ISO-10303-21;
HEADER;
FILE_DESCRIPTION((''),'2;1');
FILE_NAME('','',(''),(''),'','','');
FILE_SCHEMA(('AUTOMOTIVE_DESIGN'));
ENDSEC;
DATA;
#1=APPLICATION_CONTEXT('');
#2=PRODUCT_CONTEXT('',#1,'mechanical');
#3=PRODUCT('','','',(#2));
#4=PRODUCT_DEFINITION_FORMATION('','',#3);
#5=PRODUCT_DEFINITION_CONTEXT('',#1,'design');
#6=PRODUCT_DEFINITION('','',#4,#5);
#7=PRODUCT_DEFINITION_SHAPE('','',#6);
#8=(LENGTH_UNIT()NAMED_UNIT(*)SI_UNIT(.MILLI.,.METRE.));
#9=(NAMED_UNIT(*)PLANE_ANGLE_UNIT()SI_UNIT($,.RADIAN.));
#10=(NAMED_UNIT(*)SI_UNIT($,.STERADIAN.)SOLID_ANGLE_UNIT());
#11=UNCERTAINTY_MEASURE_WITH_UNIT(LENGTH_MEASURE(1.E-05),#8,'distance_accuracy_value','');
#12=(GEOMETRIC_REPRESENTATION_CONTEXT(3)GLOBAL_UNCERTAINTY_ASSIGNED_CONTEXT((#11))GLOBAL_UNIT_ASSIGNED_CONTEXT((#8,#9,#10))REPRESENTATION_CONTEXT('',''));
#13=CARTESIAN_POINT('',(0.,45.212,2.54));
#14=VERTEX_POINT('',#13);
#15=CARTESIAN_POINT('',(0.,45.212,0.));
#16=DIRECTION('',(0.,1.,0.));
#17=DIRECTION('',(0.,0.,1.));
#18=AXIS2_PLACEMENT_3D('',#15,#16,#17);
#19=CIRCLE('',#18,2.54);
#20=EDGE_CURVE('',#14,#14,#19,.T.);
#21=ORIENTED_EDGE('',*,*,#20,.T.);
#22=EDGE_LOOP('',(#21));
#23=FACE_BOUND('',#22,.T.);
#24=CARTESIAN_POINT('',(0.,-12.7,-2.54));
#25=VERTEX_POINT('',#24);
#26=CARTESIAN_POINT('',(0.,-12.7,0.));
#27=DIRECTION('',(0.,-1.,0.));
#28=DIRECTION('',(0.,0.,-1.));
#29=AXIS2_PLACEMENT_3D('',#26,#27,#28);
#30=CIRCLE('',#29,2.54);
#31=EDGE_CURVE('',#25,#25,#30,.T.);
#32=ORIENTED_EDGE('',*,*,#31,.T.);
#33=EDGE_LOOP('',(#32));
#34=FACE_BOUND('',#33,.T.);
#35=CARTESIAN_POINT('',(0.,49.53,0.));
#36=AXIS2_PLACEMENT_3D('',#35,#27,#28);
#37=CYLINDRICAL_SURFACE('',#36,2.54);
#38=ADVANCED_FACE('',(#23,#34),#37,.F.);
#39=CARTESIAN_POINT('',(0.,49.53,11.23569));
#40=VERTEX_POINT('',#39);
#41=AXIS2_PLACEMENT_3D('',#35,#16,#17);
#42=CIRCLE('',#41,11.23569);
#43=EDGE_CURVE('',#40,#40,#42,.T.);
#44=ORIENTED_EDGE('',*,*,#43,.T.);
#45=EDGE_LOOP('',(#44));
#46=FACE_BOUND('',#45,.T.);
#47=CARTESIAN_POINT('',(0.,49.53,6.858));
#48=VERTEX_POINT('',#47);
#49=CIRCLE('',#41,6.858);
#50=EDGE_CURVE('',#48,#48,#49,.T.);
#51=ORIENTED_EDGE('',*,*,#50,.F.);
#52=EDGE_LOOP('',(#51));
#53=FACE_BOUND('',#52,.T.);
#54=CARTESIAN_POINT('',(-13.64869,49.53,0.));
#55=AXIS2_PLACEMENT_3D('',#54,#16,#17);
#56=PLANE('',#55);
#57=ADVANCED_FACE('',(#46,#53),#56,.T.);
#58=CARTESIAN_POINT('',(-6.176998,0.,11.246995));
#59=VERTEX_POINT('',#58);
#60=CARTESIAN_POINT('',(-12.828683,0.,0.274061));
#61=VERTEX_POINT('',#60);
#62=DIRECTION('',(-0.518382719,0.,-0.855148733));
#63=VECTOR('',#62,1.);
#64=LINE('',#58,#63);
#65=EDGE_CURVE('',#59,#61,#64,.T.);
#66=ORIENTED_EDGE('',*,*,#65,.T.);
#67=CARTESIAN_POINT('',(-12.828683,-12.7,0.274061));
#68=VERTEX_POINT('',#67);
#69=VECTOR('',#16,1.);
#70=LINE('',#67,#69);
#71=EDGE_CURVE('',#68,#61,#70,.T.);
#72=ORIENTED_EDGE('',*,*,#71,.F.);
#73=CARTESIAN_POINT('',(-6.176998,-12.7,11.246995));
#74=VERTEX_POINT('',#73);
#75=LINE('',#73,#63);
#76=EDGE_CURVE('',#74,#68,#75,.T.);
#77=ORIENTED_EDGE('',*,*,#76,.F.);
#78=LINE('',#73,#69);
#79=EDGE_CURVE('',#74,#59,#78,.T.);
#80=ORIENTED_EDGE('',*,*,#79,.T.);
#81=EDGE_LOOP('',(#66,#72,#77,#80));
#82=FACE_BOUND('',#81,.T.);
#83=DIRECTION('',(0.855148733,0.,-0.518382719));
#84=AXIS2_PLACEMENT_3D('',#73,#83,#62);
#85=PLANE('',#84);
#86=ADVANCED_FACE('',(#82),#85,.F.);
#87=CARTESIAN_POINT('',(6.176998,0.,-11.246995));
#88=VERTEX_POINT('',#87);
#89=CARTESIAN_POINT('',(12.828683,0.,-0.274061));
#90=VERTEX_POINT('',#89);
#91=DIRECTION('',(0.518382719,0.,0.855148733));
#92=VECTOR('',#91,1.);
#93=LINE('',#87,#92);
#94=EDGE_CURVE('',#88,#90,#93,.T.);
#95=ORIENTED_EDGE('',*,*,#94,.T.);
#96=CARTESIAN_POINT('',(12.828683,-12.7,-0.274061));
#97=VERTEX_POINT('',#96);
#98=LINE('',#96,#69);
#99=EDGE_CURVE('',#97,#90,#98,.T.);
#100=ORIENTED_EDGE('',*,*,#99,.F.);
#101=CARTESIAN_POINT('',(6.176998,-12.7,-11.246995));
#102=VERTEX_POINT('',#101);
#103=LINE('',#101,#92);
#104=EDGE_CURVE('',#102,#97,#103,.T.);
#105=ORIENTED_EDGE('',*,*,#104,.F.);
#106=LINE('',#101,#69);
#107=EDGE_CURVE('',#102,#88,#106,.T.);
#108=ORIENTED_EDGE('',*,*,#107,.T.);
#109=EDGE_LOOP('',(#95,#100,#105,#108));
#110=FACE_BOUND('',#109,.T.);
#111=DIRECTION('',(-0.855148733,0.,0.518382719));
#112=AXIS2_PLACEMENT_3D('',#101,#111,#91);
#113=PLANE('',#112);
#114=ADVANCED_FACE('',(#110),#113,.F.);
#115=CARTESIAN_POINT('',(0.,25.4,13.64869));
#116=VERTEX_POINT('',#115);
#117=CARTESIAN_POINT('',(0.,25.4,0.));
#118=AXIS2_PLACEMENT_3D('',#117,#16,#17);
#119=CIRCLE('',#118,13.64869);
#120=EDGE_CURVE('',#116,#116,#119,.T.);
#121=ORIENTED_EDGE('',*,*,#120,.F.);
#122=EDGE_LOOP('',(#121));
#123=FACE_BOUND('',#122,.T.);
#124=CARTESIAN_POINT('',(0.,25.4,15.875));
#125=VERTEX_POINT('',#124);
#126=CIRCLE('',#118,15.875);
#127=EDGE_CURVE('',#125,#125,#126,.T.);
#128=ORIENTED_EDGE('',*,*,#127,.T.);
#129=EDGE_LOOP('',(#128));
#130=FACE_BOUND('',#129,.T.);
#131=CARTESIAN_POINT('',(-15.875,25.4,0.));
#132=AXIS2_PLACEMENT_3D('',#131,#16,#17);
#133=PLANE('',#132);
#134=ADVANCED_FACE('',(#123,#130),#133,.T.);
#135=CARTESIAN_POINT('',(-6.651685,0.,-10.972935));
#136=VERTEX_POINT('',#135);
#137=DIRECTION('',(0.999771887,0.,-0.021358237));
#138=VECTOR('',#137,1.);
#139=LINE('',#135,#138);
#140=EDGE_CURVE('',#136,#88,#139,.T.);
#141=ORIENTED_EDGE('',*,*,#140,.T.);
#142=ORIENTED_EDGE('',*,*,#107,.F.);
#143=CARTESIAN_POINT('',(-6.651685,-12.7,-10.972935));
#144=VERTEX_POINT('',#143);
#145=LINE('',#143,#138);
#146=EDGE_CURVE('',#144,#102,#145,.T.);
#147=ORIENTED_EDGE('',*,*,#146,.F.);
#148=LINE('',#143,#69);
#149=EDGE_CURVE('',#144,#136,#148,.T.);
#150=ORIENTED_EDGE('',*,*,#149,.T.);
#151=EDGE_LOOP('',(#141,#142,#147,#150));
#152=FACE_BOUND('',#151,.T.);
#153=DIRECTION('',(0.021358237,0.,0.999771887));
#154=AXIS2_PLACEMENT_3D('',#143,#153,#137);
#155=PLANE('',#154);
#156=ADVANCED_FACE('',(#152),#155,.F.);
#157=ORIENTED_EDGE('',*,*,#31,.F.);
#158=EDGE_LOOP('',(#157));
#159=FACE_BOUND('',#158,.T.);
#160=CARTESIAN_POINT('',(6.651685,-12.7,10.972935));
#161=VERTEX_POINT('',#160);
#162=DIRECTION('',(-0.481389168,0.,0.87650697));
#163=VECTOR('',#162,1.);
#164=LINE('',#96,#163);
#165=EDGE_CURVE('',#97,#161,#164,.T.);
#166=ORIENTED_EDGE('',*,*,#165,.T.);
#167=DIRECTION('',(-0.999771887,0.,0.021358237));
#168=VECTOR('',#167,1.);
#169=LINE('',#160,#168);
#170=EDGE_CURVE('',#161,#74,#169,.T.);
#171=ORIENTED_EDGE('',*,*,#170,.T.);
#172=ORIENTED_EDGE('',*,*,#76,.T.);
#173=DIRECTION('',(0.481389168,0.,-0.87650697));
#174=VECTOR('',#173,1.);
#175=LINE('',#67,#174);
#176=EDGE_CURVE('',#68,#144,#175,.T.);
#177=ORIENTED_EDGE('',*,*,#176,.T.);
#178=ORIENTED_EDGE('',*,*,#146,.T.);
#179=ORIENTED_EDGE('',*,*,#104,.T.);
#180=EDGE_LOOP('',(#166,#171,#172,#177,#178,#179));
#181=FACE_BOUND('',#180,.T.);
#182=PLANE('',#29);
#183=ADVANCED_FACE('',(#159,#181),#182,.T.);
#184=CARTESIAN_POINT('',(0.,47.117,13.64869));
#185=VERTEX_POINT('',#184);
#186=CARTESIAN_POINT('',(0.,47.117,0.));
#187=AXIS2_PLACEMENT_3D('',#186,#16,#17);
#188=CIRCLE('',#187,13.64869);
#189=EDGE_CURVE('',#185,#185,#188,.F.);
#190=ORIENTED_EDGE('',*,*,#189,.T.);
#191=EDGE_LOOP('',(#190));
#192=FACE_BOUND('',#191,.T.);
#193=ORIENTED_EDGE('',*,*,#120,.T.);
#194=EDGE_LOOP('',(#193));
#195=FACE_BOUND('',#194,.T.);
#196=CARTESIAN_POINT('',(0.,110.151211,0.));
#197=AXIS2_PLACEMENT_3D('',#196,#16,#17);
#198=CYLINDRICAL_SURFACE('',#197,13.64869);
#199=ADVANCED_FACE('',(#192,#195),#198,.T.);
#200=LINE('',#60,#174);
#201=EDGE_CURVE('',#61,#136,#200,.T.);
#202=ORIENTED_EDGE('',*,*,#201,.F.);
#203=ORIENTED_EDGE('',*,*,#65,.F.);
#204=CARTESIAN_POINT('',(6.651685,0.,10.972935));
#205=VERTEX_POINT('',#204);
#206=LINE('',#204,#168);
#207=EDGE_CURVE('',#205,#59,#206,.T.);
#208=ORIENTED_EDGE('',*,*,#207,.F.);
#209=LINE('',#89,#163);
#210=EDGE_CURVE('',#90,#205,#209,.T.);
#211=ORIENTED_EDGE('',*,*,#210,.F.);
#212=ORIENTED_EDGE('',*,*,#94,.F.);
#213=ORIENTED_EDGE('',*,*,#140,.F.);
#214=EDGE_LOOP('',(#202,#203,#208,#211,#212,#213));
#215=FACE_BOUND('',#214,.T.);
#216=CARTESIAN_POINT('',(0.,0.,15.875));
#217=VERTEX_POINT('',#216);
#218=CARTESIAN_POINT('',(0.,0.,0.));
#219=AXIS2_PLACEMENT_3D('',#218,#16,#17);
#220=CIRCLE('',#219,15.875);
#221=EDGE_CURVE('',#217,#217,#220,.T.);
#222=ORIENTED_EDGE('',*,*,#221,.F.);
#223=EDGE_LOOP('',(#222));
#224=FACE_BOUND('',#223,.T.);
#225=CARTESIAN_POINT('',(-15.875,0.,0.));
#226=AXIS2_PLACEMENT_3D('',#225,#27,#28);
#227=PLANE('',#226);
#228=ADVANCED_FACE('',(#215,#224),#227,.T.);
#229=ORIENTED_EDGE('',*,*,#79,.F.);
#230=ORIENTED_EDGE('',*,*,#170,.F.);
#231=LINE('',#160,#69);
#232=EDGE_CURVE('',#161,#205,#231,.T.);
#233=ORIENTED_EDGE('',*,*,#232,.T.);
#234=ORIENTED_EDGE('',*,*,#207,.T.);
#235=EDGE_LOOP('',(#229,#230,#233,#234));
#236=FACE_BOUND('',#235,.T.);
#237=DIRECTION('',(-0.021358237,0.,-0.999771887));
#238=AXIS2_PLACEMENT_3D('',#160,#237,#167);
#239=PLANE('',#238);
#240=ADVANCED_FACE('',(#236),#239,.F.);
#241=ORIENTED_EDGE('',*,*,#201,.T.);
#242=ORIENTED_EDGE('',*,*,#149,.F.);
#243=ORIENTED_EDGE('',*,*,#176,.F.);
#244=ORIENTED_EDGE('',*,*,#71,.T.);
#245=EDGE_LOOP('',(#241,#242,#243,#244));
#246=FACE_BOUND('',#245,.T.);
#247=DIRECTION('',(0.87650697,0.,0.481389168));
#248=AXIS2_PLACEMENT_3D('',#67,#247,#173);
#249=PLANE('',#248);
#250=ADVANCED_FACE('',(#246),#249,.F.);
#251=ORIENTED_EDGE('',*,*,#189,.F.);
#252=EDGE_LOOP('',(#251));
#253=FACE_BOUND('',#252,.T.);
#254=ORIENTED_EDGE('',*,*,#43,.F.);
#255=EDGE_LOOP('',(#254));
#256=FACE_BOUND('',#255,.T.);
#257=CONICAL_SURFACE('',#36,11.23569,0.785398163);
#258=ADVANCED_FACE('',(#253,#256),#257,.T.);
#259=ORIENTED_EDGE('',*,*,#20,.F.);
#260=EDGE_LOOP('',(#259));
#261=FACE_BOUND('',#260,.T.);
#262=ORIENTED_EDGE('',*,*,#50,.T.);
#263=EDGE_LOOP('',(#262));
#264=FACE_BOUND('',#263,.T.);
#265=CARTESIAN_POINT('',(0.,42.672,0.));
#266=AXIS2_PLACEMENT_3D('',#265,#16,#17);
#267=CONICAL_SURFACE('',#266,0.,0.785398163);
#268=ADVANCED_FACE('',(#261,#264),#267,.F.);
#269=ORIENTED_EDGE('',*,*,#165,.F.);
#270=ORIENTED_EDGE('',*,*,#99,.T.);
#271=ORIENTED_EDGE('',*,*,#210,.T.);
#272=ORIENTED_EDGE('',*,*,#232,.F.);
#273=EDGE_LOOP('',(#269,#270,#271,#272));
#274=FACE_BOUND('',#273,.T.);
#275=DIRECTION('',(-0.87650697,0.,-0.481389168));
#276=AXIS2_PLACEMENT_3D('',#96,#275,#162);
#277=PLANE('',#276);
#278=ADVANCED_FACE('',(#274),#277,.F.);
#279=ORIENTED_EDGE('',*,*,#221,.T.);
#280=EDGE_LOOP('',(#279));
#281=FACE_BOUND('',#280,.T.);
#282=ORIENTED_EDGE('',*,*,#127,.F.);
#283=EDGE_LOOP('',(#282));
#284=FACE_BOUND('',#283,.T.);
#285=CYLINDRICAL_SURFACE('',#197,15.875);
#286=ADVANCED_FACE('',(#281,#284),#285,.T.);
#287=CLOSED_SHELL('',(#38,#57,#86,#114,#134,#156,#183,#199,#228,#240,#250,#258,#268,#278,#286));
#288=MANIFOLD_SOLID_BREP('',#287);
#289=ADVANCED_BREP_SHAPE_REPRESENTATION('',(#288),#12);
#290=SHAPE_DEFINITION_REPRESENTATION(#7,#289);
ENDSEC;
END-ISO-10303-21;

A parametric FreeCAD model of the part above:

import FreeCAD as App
import Part
import Sketcher

V = App.Vector
Q = App.Units.Quantity


def edges_at(feature, points):
    """Names of the edges that pass closest to the given points."""
    edges = feature.Shape.Edges
    near = lambda p: min(range(len(edges)), key=lambda i: edges[i].distToShape(Part.Vertex(*p))[0])
    return sorted({f"Edge{near(p) + 1}" for p in points})


def add_polygon(sketch, points):
    """Adds a closed chain of lines whose ends are joined by coincident constraints."""
    first, n = sketch.GeometryCount, len(points)
    for a, b in zip(points, points[1:] + points[:1]):
        sketch.addGeometry(Part.LineSegment(App.Vector(*a, 0), App.Vector(*b, 0)), False)
    for i in range(n):
        sketch.addConstraint(Sketcher.Constraint("Coincident", first + i, 2, first + (i + 1) % n, 1))

doc = App.newDocument("Part")
body = doc.addObject("PartDesign::Body", "Body")

# Sketch on XY plane
sketch1 = body.newObject("Sketcher::SketchObject", "Sketch")
sketch1.AttachmentSupport = (doc.getObject("XY_Plane"), [""])
sketch1.MapMode = "FlatFace"
add_polygon(sketch1, [(-13.6, 25.4), (-15.9, 25.4), (-15.9, 0), (0, 0), (0, 42.7), (-6.9, 49.5), (-13.6, 49.5)])  # lines 0-6
sketch1.addConstraint(Sketcher.Constraint("Horizontal", 0))
sketch1.addConstraint(Sketcher.Constraint("Vertical", 1))
sketch1.addConstraint(Sketcher.Constraint("Horizontal", 2))
sketch1.addConstraint(Sketcher.Constraint("Vertical", 3))
sketch1.addConstraint(Sketcher.Constraint("Horizontal", 5))
sketch1.addConstraint(Sketcher.Constraint("Vertical", 6))
sketch1.addConstraint(Sketcher.Constraint("Coincident", 2, 2, -1, 1))
sketch1.addConstraint(Sketcher.Constraint("DistanceY", 1, 2, 1, 1, Q("1 in")))
sketch1.addConstraint(Sketcher.Constraint("Angle", 4, Q("135 deg")))
sketch1.addConstraint(Sketcher.Constraint("DistanceY", 3, 1, 3, 2, Q("1.68 in")))
sketch1.addConstraint(Sketcher.Constraint("DistanceY", 6, 2, 6, 1, Q("0.95 in")))
sketch1.addConstraint(Sketcher.Constraint("DistanceX", 2, 1, 2, 2, Q("0.625 in")))
sketch1.addConstraint(Sketcher.Constraint("DistanceX", 0, 2, 0, 1, 2.22631))
revolution = body.newObject("PartDesign::Revolution", "Revolution")
revolution.Profile = sketch1
revolution.ReferenceAxis = (sketch1, ["V_Axis"])
revolution.Angle = 360

# Sketch on XZ plane
sketch2 = body.newObject("Sketcher::SketchObject", "Sketch001")
sketch2.AttachmentSupport = (doc.getObject("XZ_Plane"), [""])
sketch2.MapMode = "FlatFace"
add_polygon(sketch2, [(-13, 0), (-7, -11), (6, -11), (13, 0), (7, 11), (-6, 11)])  # lines 0-5
sketch2.addConstraint(Sketcher.Constraint("Symmetric", 0, 2, 3, 2, -1, 1))
sketch2.addConstraint(Sketcher.Constraint("Symmetric", 1, 2, 4, 2, -1, 1))
sketch2.addConstraint(Sketcher.Constraint("Symmetric", 2, 2, 5, 2, -1, 1))
sketch2.addConstraint(Sketcher.Constraint("Equal", 0, 1))
sketch2.addConstraint(Sketcher.Constraint("Equal", 1, 2))
sketch2.addConstraint(Sketcher.Constraint("Distance", 0, 12.83161))
sketch2.addConstraint(Sketcher.Constraint("DistanceY", 2, 2, -1, 1, 0.274061))
sketch2.addConstraint(Sketcher.Constraint("DistanceY", 1, 2, 0, 2, 0.274061))
sketch2.addConstraint(Sketcher.Constraint("DistanceY", 1, 2, 3, 2, 22.21993))
pad1 = body.newObject("PartDesign::Pad", "Pad")
pad1.Profile = sketch2
pad1.Length = Q("0.5 in")
doc.recompute()

chamfer = body.newObject("PartDesign::Chamfer", "Chamfer")
chamfer.Base = (pad1, edges_at(pad1, [(13.649, 49.53, 0)]))
chamfer.Size = Q("0.095 in")

# Sketch on XZ plane
sketch3 = body.newObject("Sketcher::SketchObject", "Sketch002")
sketch3.AttachmentSupport = (doc.getObject("XZ_Plane"), [""])
sketch3.MapMode = "FlatFace"
sketch3.AttachmentOffset = App.Placement(V(0, 0, 0.5 * 25.4), App.Rotation())
sketch3.addGeometry(Part.Circle(V(0, 0, 0), V(0, 0, 1), 2.5), False)
sketch3.addConstraint(Sketcher.Constraint("Coincident", 0, 3, -1, 1))
sketch3.addConstraint(Sketcher.Constraint("Diameter", 0, Q("0.2 in")))
pocket1 = body.newObject("PartDesign::Pocket", "Pocket")
pocket1.Profile = sketch3
pocket1.Type = "ThroughAll"

doc.recompute()
